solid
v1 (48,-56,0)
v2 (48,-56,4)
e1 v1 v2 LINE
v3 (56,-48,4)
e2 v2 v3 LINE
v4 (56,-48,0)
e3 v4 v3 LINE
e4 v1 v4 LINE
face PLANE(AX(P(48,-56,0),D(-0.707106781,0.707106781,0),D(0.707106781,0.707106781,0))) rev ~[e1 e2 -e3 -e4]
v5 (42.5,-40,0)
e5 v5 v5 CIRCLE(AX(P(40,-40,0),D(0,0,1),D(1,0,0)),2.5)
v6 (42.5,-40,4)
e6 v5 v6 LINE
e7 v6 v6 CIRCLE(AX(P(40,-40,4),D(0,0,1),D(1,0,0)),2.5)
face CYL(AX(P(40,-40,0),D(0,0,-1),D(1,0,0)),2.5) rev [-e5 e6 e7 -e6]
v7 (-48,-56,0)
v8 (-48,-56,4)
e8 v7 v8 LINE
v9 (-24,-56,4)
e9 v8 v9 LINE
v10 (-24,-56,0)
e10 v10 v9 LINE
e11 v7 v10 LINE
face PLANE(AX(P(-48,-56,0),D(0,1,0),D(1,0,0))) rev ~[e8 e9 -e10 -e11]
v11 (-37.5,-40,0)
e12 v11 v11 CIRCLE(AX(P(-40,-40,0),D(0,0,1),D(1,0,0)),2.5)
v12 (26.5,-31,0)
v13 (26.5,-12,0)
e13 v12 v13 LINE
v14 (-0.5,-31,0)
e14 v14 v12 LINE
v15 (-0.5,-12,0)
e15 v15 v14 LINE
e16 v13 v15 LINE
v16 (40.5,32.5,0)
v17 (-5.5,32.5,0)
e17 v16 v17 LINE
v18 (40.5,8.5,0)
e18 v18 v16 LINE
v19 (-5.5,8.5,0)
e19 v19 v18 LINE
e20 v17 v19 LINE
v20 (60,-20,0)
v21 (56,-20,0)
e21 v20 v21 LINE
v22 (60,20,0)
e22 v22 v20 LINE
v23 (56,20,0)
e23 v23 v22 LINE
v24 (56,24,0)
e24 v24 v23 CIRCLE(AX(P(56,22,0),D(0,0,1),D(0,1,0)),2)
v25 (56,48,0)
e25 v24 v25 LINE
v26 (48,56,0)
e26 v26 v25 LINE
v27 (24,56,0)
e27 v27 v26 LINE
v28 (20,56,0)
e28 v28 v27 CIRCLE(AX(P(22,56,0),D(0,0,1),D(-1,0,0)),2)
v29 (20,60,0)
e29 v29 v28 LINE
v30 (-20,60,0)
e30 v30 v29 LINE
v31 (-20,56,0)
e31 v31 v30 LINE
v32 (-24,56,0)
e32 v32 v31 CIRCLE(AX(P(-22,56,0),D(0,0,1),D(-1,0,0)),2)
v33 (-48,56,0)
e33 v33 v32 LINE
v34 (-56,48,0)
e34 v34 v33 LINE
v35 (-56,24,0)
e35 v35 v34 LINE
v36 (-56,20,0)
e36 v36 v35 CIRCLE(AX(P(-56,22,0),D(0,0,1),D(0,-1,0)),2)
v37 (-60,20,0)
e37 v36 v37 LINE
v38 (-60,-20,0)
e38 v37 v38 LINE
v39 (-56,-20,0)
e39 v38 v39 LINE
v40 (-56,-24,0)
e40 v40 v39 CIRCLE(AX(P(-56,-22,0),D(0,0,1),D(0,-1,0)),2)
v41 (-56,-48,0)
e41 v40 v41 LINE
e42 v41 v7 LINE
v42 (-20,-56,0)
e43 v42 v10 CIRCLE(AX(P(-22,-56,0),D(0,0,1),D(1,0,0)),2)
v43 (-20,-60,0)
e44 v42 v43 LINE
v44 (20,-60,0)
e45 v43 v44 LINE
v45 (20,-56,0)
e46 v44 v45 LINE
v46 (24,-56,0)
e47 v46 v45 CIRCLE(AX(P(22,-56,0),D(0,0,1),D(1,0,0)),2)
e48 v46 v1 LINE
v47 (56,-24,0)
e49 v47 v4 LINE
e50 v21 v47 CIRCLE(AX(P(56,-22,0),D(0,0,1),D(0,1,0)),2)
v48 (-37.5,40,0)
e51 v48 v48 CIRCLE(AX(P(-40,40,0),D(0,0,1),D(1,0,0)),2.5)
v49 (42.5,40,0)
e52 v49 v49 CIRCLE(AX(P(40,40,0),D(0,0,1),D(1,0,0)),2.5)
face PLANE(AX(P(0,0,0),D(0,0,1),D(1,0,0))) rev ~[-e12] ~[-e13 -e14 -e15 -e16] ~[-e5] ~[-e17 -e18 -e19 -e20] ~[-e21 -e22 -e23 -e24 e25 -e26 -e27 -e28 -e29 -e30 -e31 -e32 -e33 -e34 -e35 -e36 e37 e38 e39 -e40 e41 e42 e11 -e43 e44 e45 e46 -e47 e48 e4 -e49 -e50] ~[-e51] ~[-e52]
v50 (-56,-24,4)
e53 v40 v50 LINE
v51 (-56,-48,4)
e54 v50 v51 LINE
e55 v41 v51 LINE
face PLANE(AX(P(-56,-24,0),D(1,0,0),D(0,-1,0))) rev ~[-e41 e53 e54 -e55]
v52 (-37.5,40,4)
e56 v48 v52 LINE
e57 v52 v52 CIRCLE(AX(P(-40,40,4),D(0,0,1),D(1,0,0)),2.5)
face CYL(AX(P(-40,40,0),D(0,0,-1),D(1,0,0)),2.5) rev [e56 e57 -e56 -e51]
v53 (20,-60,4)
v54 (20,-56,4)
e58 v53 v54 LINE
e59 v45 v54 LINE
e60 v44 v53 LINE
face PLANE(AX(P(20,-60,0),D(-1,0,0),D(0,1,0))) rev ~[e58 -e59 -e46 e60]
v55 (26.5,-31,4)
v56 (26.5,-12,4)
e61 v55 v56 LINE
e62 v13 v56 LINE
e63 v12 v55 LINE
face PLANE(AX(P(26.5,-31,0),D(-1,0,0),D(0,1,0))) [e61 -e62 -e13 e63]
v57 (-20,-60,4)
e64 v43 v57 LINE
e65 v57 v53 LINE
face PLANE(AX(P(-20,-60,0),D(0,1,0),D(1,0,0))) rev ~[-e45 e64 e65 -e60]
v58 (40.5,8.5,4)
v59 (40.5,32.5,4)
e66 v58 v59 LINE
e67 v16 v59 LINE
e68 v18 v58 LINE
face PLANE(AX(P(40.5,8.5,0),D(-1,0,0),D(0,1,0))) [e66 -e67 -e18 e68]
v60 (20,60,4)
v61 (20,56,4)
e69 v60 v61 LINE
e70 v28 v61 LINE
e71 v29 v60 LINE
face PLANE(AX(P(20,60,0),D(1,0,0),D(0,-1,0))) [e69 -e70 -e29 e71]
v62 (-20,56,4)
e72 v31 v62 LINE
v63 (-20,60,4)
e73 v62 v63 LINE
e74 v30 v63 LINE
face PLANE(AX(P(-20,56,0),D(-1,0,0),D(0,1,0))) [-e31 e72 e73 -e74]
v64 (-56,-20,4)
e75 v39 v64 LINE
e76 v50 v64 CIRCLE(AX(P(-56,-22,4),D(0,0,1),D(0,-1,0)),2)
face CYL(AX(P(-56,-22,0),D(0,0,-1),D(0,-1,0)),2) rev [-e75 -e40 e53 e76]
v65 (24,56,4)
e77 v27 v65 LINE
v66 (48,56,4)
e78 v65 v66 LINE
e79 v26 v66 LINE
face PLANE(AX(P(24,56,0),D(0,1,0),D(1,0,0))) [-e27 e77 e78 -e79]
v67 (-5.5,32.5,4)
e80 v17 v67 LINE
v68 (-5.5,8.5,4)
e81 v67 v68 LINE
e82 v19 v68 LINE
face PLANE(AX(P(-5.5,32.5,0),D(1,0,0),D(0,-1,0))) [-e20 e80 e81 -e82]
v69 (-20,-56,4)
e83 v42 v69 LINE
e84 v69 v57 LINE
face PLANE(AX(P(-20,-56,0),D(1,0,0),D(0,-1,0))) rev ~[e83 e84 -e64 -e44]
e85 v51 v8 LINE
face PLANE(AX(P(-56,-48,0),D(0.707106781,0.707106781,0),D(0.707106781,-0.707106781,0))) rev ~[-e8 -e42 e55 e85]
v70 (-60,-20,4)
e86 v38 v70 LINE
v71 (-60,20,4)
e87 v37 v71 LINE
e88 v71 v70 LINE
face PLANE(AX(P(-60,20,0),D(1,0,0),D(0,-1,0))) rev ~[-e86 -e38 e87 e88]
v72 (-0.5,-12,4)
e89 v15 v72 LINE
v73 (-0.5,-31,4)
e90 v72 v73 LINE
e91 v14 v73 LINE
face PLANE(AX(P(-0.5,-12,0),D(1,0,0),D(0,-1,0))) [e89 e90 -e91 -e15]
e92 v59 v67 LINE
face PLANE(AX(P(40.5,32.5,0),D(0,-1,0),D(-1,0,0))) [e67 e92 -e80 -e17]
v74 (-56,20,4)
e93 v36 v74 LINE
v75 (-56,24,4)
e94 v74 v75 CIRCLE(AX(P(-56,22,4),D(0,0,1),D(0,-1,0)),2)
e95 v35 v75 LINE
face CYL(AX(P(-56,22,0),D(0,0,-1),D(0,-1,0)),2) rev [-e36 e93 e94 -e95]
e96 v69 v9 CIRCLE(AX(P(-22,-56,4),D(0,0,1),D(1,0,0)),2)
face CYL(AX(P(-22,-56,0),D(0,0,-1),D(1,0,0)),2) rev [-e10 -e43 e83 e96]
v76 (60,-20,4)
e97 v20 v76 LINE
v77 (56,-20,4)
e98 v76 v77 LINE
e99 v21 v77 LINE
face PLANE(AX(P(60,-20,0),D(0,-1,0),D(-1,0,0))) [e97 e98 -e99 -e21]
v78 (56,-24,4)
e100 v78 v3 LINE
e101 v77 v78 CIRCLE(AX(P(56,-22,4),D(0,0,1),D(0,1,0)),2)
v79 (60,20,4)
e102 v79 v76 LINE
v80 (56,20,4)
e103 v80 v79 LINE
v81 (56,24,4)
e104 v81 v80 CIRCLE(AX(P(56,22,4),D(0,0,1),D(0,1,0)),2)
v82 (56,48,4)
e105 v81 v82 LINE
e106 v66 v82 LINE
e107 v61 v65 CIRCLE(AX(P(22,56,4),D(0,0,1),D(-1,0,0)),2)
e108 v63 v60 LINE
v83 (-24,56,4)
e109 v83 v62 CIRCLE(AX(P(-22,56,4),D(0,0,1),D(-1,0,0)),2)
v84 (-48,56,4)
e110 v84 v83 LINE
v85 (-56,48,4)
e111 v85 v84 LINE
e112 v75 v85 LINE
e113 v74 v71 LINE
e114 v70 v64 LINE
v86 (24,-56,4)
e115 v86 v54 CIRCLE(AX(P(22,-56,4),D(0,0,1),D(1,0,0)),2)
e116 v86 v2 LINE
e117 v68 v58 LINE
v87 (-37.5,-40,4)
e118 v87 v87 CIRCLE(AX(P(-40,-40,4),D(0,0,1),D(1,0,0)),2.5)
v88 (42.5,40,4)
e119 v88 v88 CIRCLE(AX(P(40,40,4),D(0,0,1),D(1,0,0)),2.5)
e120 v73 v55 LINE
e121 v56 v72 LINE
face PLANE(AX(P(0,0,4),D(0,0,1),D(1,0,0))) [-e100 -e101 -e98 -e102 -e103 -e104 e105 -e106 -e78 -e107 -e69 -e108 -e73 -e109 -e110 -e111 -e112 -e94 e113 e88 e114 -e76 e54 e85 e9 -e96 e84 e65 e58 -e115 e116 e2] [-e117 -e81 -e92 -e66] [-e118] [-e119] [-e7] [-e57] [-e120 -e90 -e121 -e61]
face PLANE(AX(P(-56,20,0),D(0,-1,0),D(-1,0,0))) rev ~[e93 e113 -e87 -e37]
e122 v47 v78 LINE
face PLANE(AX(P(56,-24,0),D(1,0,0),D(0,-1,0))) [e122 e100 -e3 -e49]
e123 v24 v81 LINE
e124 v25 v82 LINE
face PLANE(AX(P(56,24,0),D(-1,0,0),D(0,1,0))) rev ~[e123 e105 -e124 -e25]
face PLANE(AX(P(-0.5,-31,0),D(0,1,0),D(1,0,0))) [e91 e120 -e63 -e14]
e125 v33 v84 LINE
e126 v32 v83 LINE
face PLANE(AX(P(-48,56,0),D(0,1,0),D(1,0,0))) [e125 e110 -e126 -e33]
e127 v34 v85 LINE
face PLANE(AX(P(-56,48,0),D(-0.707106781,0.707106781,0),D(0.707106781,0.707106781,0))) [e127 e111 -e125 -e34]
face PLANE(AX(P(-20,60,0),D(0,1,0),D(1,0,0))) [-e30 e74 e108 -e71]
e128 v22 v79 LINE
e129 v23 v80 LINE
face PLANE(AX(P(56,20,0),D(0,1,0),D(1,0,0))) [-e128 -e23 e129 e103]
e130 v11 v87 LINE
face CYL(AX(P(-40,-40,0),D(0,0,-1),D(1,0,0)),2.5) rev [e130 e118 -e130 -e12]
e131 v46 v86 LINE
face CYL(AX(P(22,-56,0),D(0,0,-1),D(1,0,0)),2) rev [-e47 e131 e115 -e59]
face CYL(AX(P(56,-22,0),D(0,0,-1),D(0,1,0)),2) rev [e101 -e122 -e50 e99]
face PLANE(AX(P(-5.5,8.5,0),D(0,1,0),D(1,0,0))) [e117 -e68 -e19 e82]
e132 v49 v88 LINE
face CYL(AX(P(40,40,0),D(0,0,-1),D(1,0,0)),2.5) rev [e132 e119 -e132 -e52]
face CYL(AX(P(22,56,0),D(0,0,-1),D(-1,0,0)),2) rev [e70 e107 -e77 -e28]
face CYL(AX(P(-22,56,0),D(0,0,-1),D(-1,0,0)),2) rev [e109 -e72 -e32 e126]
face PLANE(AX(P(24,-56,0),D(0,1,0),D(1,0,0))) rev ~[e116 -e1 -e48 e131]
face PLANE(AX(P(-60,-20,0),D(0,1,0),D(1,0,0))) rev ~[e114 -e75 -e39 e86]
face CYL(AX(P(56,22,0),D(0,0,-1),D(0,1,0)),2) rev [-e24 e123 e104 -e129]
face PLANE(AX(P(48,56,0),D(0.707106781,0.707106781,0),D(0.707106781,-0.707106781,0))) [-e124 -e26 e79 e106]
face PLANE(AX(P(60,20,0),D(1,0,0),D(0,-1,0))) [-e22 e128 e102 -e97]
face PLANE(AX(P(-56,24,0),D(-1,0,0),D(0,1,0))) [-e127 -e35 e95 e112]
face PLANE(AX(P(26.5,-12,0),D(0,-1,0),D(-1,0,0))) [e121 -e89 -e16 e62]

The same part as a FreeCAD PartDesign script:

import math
import FreeCAD as App
import Part
import Sketcher

V = App.Vector

doc = App.newDocument("Part")
body = doc.addObject("PartDesign::Body", "Body")

sketch1 = body.newObject("Sketcher::SketchObject", "Sketch")
sketch1.AttachmentSupport = (doc.getObject("XY_Plane"), [""])
sketch1.MapMode = "FlatFace"
sketch1.addGeometry([
    Part.LineSegment(V(-56, 20, 0), V(-60, 20, 0)),
    Part.LineSegment(V(-60, 20, 0), V(-60, -20, 0)),
    Part.LineSegment(V(-60, -20, 0), V(-56, -20, 0)),
    Part.ArcOfCircle(Part.Circle(V(-56, -22, 0), V(0, 0, 1), 2), math.radians(-90), math.radians(90)),
    Part.LineSegment(V(-56, -24, 0), V(-56, -48, 0)),
    Part.LineSegment(V(-56, -48, 0), V(-48, -56, 0)),
    Part.LineSegment(V(-48, -56, 0), V(-24, -56, 0)),
    Part.ArcOfCircle(Part.Circle(V(-22, -56, 0), V(0, 0, 1), 2), math.radians(0), math.radians(180)),
    Part.LineSegment(V(-20, -56, 0), V(-20, -60, 0)),
    Part.LineSegment(V(-20, -60, 0), V(20, -60, 0)),
    Part.LineSegment(V(20, -60, 0), V(20, -56, 0)),
    Part.ArcOfCircle(Part.Circle(V(22, -56, 0), V(0, 0, 1), 2), math.radians(0), math.radians(180)),
    Part.LineSegment(V(24, -56, 0), V(48, -56, 0)),
    Part.LineSegment(V(48, -56, 0), V(56, -48, 0)),
    Part.LineSegment(V(56, -48, 0), V(56, -24, 0)),
    Part.ArcOfCircle(Part.Circle(V(56, -22, 0), V(0, 0, 1), 2), math.radians(90), math.radians(270)),
    Part.LineSegment(V(56, -20, 0), V(60, -20, 0)),
    Part.LineSegment(V(60, -20, 0), V(60, 20, 0)),
    Part.LineSegment(V(60, 20, 0), V(56, 20, 0)),
    Part.ArcOfCircle(Part.Circle(V(56, 22, 0), V(0, 0, 1), 2), math.radians(90), math.radians(270)),
    Part.LineSegment(V(56, 24, 0), V(56, 48, 0)),
    Part.LineSegment(V(56, 48, 0), V(48, 56, 0)),
    Part.LineSegment(V(48, 56, 0), V(24, 56, 0)),
    Part.ArcOfCircle(Part.Circle(V(22, 56, 0), V(0, 0, 1), 2), math.radians(180), math.radians(360)),
    Part.LineSegment(V(20, 56, 0), V(20, 60, 0)),
    Part.LineSegment(V(20, 60, 0), V(-20, 60, 0)),
    Part.LineSegment(V(-20, 60, 0), V(-20, 56, 0)),
    Part.ArcOfCircle(Part.Circle(V(-22, 56, 0), V(0, 0, 1), 2), math.radians(180), math.radians(360)),
    Part.LineSegment(V(-24, 56, 0), V(-48, 56, 0)),
    Part.LineSegment(V(-48, 56, 0), V(-56, 48, 0)),
    Part.LineSegment(V(-56, 48, 0), V(-56, 24, 0)),
    Part.ArcOfCircle(Part.Circle(V(-56, 22, 0), V(0, 0, 1), 2), math.radians(-90), math.radians(90)),
    Part.Circle(V(-40, -40, 0), V(0, 0, 1), 2.5),
    Part.Circle(V(40, -40, 0), V(0, 0, 1), 2.5),
    Part.LineSegment(V(-0.5, -12, 0), V(26.5, -12, 0)),
    Part.LineSegment(V(26.5, -12, 0), V(26.5, -31, 0)),
    Part.LineSegment(V(26.5, -31, 0), V(-0.5, -31, 0)),
    Part.LineSegment(V(-0.5, -31, 0), V(-0.5, -12, 0)),
    Part.Circle(V(-40, 40, 0), V(0, 0, 1), 2.5),
    Part.LineSegment(V(40.5, 32.5, 0), V(40.5, 8.5, 0)),
    Part.LineSegment(V(40.5, 8.5, 0), V(-5.5, 8.5, 0)),
    Part.LineSegment(V(-5.5, 8.5, 0), V(-5.5, 32.5, 0)),
    Part.LineSegment(V(-5.5, 32.5, 0), V(40.5, 32.5, 0)),
    Part.Circle(V(40, 40, 0), V(0, 0, 1), 2.5),
], False)
sketch1.addConstraint([
    Sketcher.Constraint("Coincident", 0, 2, 1, 1),
    Sketcher.Constraint("Coincident", 1, 2, 2, 1),
    Sketcher.Constraint("Tangent", 2, 2, 3, 2),
    Sketcher.Constraint("Coincident", 3, 1, 4, 1),
    Sketcher.Constraint("Coincident", 4, 2, 5, 1),
    Sketcher.Constraint("Coincident", 5, 2, 6, 1),
    Sketcher.Constraint("Coincident", 6, 2, 7, 2),
    Sketcher.Constraint("Tangent", 7, 1, 8, 1),
    Sketcher.Constraint("Coincident", 8, 2, 9, 1),
    Sketcher.Constraint("Coincident", 9, 2, 10, 1),
    Sketcher.Constraint("Tangent", 10, 2, 11, 2),
    Sketcher.Constraint("Coincident", 11, 1, 12, 1),
    Sketcher.Constraint("Coincident", 12, 2, 13, 1),
    Sketcher.Constraint("Coincident", 13, 2, 14, 1),
    Sketcher.Constraint("Coincident", 14, 2, 15, 2),
    Sketcher.Constraint("Tangent", 15, 1, 16, 1),
    Sketcher.Constraint("Coincident", 16, 2, 17, 1),
    Sketcher.Constraint("Coincident", 17, 2, 18, 1),
    Sketcher.Constraint("Tangent", 18, 2, 19, 2),
    Sketcher.Constraint("Coincident", 19, 1, 20, 1),
    Sketcher.Constraint("Coincident", 20, 2, 21, 1),
    Sketcher.Constraint("Coincident", 21, 2, 22, 1),
    Sketcher.Constraint("Coincident", 22, 2, 23, 2),
    Sketcher.Constraint("Tangent", 23, 1, 24, 1),
    Sketcher.Constraint("Coincident", 24, 2, 25, 1),
    Sketcher.Constraint("Coincident", 25, 2, 26, 1),
    Sketcher.Constraint("Tangent", 26, 2, 27, 2),
    Sketcher.Constraint("Coincident", 27, 1, 28, 1),
    Sketcher.Constraint("Coincident", 28, 2, 29, 1),
    Sketcher.Constraint("Coincident", 29, 2, 30, 1),
    Sketcher.Constraint("Coincident", 30, 2, 31, 2),
    Sketcher.Constraint("Tangent", 31, 1, 0, 1),
    Sketcher.Constraint("Coincident", 34, 2, 35, 1),
    Sketcher.Constraint("Coincident", 35, 2, 36, 1),
    Sketcher.Constraint("Coincident", 36, 2, 37, 1),
    Sketcher.Constraint("Coincident", 37, 2, 34, 1),
    Sketcher.Constraint("Coincident", 39, 2, 40, 1),
    Sketcher.Constraint("Coincident", 40, 2, 41, 1),
    Sketcher.Constraint("Coincident", 41, 2, 42, 1),
    Sketcher.Constraint("Coincident", 42, 2, 39, 1),
    Sketcher.Constraint("Horizontal", 0),
    Sketcher.Constraint("Vertical", 1),
    Sketcher.Constraint("Horizontal", 2),
    Sketcher.Constraint("Vertical", 4),
    Sketcher.Constraint("Horizontal", 6),
    Sketcher.Constraint("Vertical", 8),
    Sketcher.Constraint("Horizontal", 9),
    Sketcher.Constraint("Vertical", 10),
    Sketcher.Constraint("Horizontal", 12),
    Sketcher.Constraint("Vertical", 14),
    Sketcher.Constraint("Horizontal", 16),
    Sketcher.Constraint("Vertical", 17),
    Sketcher.Constraint("Horizontal", 18),
    Sketcher.Constraint("Vertical", 20),
    Sketcher.Constraint("Horizontal", 22),
    Sketcher.Constraint("Vertical", 24),
    Sketcher.Constraint("Horizontal", 25),
    Sketcher.Constraint("Vertical", 26),
    Sketcher.Constraint("Horizontal", 28),
    Sketcher.Constraint("Vertical", 30),
    Sketcher.Constraint("Horizontal", 34),
    Sketcher.Constraint("Vertical", 35),
    Sketcher.Constraint("Horizontal", 36),
    Sketcher.Constraint("Vertical", 37),
    Sketcher.Constraint("Vertical", 39),
    Sketcher.Constraint("Horizontal", 40),
    Sketcher.Constraint("Vertical", 41),
    Sketcher.Constraint("Horizontal", 42),
    Sketcher.Constraint("Equal", 3, 7),
    Sketcher.Constraint("Equal", 7, 11),
    Sketcher.Constraint("Equal", 11, 15),
    Sketcher.Constraint("Equal", 15, 19),
    Sketcher.Constraint("Equal", 19, 23),
    Sketcher.Constraint("Equal", 23, 27),
    Sketcher.Constraint("Equal", 27, 31),
    Sketcher.Constraint("Equal", 32, 33),
    Sketcher.Constraint("Equal", 33, 38),
    Sketcher.Constraint("Equal", 38, 43),
    Sketcher.Constraint("Symmetric", 3, 3, 19, 3, -1, 1),
    Sketcher.Constraint("Symmetric", 7, 3, 23, 3, -1, 1),
    Sketcher.Constraint("Symmetric", 11, 3, 27, 3, -1, 1),
    Sketcher.Constraint("Symmetric", 15, 3, 31, 3, -1, 1),
    Sketcher.Constraint("Symmetric", 33, 3, 38, 3, -1, 1),
    Sketcher.Constraint("Symmetric", 32, 3, 43, 3, -1, 1),
    Sketcher.Constraint("Symmetric", 4, 2, 20, 2, -1, 1),
    Sketcher.Constraint("Symmetric", 5, 2, 21, 2, -1, 1),
    Sketcher.Constraint("Symmetric", 12, 2, 28, 2, -1, 1),
    Sketcher.Constraint("Symmetric", 13, 2, 29, 2, -1, 1),
    Sketcher.Constraint("Symmetric", 7, 3, 11, 3, -2),
    Sketcher.Constraint("Symmetric", 3, 3, 15, 3, -2),
    Sketcher.Constraint("Symmetric", 32, 3, 33, 3, -2),
    Sketcher.Constraint("Symmetric", 5, 2, 12, 2, -2),
    Sketcher.Constraint("Symmetric", 4, 2, 13, 2, -2),
    Sketcher.Constraint("Perpendicular", 5, 13),
    Sketcher.Constraint("Horizontal", 11, 3, 5, 2),
    Sketcher.Constraint("Vertical", 2, 2, 3, 1),
    Sketcher.Constraint("Equal", 2, 16),
    Sketcher.Constraint("Equal", 25, 1),
    Sketcher.Constraint("Equal", 28, 4),
    Sketcher.Constraint("Equal", 18, 8),
    Sketcher.Constraint("Equal", 10, 24),
    Sketcher.Constraint("Equal", 30, 39),
    Sketcher.Constraint("Diameter", 32, 5.0),
    Sketcher.Constraint("Radius", 3, 2.0),
    Sketcher.Constraint("DistanceX", 0, 2, 0, 1, 4.0),
    Sketcher.Constraint("DistanceX", 6, 1, 6, 2, 24.0),
    Sketcher.Constraint("DistanceX", 9, 1, 9, 2, 40.0),
    Sketcher.Constraint("DistanceX", 34, 1, 34, 2, 27.0),
    Sketcher.Constraint("DistanceX", 40, 2, 40, 1, 46.0),
    Sketcher.Constraint("DistanceY", 35, 2, 35, 1, 19.0),
    Sketcher.Constraint("DistanceX", 32, 3, -1, 1, 40.0),
    Sketcher.Constraint("DistanceY", 32, 3, -1, 1, 40.0),
    Sketcher.Constraint("DistanceY", 35, 2, -1, 1, 31.0),
    Sketcher.Constraint("DistanceX", 3, 3, 15, 3, 112.0),
    Sketcher.Constraint("DistanceX", 40, 2, 37, 2, 5.0),
    Sketcher.Constraint("DistanceX", -1, 1, 34, 2, 26.5),
    Sketcher.Constraint("DistanceY", -1, 1, 39, 2, 8.5),
])
pad1 = body.newObject("PartDesign::Pad", "Pad")
pad1.Profile = sketch1
pad1.Length = 4

doc.recompute()
